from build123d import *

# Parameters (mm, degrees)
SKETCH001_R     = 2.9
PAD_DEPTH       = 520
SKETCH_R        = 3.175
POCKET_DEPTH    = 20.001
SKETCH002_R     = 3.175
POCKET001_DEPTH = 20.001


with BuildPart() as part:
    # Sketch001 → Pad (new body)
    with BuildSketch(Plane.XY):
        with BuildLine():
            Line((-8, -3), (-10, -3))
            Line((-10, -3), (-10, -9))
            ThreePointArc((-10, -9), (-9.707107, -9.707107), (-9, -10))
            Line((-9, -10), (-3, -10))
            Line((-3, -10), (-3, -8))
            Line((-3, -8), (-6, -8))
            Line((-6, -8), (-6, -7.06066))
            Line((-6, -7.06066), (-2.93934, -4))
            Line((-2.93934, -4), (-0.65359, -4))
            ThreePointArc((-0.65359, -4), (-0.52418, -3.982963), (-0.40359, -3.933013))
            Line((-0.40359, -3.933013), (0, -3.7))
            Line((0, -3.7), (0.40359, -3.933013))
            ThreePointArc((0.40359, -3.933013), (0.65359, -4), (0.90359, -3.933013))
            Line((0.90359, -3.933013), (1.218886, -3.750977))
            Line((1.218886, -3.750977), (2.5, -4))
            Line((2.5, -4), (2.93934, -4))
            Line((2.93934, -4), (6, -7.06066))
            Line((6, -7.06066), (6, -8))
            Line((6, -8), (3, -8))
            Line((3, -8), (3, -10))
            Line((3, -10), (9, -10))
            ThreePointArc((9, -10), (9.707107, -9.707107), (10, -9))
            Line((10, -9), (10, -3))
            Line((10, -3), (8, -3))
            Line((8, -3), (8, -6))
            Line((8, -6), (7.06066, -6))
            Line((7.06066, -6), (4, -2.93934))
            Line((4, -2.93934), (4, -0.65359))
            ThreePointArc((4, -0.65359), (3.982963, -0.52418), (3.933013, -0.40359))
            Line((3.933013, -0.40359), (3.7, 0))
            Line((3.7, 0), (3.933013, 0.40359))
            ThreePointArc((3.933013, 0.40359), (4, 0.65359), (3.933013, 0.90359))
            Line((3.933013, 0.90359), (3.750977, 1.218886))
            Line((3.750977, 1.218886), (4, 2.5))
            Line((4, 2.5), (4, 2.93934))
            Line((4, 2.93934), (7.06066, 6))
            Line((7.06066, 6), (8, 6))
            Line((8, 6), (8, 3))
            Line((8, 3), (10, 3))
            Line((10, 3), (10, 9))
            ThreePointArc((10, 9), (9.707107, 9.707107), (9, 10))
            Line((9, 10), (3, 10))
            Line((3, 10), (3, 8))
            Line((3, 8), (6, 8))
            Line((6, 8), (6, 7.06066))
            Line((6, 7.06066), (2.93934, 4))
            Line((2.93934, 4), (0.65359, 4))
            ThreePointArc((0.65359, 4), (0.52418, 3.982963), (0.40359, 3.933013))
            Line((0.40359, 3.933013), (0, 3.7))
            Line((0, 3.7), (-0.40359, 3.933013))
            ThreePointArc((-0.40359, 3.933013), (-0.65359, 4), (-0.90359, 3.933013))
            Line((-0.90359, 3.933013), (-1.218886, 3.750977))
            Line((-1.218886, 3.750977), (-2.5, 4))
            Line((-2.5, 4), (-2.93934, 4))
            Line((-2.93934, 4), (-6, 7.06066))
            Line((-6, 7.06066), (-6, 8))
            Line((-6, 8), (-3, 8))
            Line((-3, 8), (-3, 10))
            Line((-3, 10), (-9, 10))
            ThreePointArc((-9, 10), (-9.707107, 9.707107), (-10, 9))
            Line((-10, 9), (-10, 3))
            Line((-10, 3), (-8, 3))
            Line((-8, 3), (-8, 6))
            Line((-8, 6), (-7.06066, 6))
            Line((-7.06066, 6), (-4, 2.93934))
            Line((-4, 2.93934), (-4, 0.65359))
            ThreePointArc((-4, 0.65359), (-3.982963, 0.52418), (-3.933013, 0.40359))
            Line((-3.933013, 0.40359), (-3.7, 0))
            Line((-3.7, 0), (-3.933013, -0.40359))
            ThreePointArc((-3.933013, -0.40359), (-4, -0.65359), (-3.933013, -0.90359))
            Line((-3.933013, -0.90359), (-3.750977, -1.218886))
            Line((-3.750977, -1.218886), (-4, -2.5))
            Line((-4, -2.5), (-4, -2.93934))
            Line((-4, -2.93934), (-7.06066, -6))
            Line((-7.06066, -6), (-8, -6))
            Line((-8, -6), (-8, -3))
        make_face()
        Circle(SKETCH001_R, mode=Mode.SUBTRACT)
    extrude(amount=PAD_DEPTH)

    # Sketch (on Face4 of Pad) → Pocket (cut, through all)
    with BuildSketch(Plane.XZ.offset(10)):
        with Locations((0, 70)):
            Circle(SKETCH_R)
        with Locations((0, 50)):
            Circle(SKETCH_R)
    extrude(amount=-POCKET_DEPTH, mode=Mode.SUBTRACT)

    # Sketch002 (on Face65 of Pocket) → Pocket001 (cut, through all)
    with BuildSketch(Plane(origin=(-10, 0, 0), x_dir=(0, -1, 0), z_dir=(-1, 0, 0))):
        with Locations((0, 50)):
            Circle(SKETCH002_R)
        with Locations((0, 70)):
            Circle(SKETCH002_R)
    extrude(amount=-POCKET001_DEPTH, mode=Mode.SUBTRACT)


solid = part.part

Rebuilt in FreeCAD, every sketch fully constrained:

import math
import FreeCAD as App
import Part
import Sketcher
from FreeCAD import Vector
Q = App.Units.Quantity

doc = App.newDocument("Part")
body = doc.addObject("PartDesign::Body", "Body")

sketch1 = doc.addObject("Sketcher::SketchObject", "Sketch")
body.addObject(sketch1)
sketch1.AttachmentSupport = (doc.XY_Plane, [""])
sketch1.MapMode = "FlatFace"
sketch1.addGeometry(Part.LineSegment(Vector(-8, -3, 0), Vector(-10, -3, 0)), False)
sketch1.addGeometry(Part.LineSegment(Vector(-10, -3, 0), Vector(-10, -9, 0)), False)
sketch1.addGeometry(Part.ArcOfCircle(Part.Circle(Vector(-9, -9, 0), Vector(0, 0, 1), 1), math.radians(180), math.radians(270)), False)
sketch1.addGeometry(Part.LineSegment(Vector(-9, -10, 0), Vector(-3, -10, 0)), False)
sketch1.addGeometry(Part.LineSegment(Vector(-3, -10, 0), Vector(-3, -8, 0)), False)
sketch1.addGeometry(Part.LineSegment(Vector(-3, -8, 0), Vector(-6, -8, 0)), False)
sketch1.addGeometry(Part.LineSegment(Vector(-6, -8, 0), Vector(-6, -7.06, 0)), False)
sketch1.addGeometry(Part.LineSegment(Vector(-6, -7.06, 0), Vector(-2.94, -4, 0)), False)
sketch1.addGeometry(Part.LineSegment(Vector(-2.94, -4, 0), Vector(-0.65, -4, 0)), False)
sketch1.addGeometry(Part.ArcOfCircle(Part.Circle(Vector(-0.65, -3.5, 0), Vector(0, 0, 1), 0.5), math.radians(-90), math.radians(-60)), False)
sketch1.addGeometry(Part.LineSegment(Vector(-0.4, -3.93, 0), Vector(0, -3.7, 0)), False)
sketch1.addGeometry(Part.LineSegment(Vector(0, -3.7, 0), Vector(0.4, -3.93, 0)), False)
sketch1.addGeometry(Part.ArcOfCircle(Part.Circle(Vector(0.65, -3.5, 0), Vector(0, 0, 1), 0.5), math.radians(-120), math.radians(-60)), False)
sketch1.addGeometry(Part.LineSegment(Vector(0.9, -3.93, 0), Vector(1.22, -3.75, 0)), False)
sketch1.addGeometry(Part.LineSegment(Vector(1.22, -3.75, 0), Vector(2.5, -4, 0)), False)
sketch1.addGeometry(Part.LineSegment(Vector(2.5, -4, 0), Vector(2.94, -4, 0)), False)
sketch1.addGeometry(Part.LineSegment(Vector(2.94, -4, 0), Vector(6, -7.06, 0)), False)
sketch1.addGeometry(Part.LineSegment(Vector(6, -7.06, 0), Vector(6, -8, 0)), False)
sketch1.addGeometry(Part.LineSegment(Vector(6, -8, 0), Vector(3, -8, 0)), False)
sketch1.addGeometry(Part.LineSegment(Vector(3, -8, 0), Vector(3, -10, 0)), False)
sketch1.addGeometry(Part.LineSegment(Vector(3, -10, 0), Vector(9, -10, 0)), False)
sketch1.addGeometry(Part.ArcOfCircle(Part.Circle(Vector(9, -9, 0), Vector(0, 0, 1), 1), math.radians(-90), math.radians(0)), False)
sketch1.addGeometry(Part.LineSegment(Vector(10, -9, 0), Vector(10, -3, 0)), False)
sketch1.addGeometry(Part.LineSegment(Vector(10, -3, 0), Vector(8, -3, 0)), False)
sketch1.addGeometry(Part.LineSegment(Vector(8, -3, 0), Vector(8, -6, 0)), False)
sketch1.addGeometry(Part.LineSegment(Vector(8, -6, 0), Vector(7.06, -6, 0)), False)
sketch1.addGeometry(Part.LineSegment(Vector(7.06, -6, 0), Vector(4, -2.94, 0)), False)
sketch1.addGeometry(Part.LineSegment(Vector(4, -2.94, 0), Vector(4, -0.65, 0)), False)
sketch1.addGeometry(Part.ArcOfCircle(Part.Circle(Vector(3.5, -0.65, 0), Vector(0, 0, 1), 0.5), math.radians(0), math.radians(30)), False)
sketch1.addGeometry(Part.LineSegment(Vector(3.93, -0.4, 0), Vector(3.7, 0, 0)), False)
sketch1.addGeometry(Part.LineSegment(Vector(3.7, 0, 0), Vector(3.93, 0.4, 0)), False)
sketch1.addGeometry(Part.ArcOfCircle(Part.Circle(Vector(3.5, 0.65, 0), Vector(0, 0, 1), 0.5), math.radians(-30), math.radians(30)), False)
sketch1.addGeometry(Part.LineSegment(Vector(3.93, 0.9, 0), Vector(3.75, 1.22, 0)), False)
sketch1.addGeometry(Part.LineSegment(Vector(3.75, 1.22, 0), Vector(4, 2.5, 0)), False)
sketch1.addGeometry(Part.LineSegment(Vector(4, 2.5, 0), Vector(4, 2.94, 0)), False)
sketch1.addGeometry(Part.LineSegment(Vector(4, 2.94, 0), Vector(7.06, 6, 0)), False)
sketch1.addGeometry(Part.LineSegment(Vector(7.06, 6, 0), Vector(8, 6, 0)), False)
sketch1.addGeometry(Part.LineSegment(Vector(8, 6, 0), Vector(8, 3, 0)), False)
sketch1.addGeometry(Part.LineSegment(Vector(8, 3, 0), Vector(10, 3, 0)), False)
sketch1.addGeometry(Part.LineSegment(Vector(10, 3, 0), Vector(10, 9, 0)), False)
sketch1.addGeometry(Part.ArcOfCircle(Part.Circle(Vector(9, 9, 0), Vector(0, 0, 1), 1), math.radians(0), math.radians(90)), False)
sketch1.addGeometry(Part.LineSegment(Vector(9, 10, 0), Vector(3, 10, 0)), False)
sketch1.addGeometry(Part.LineSegment(Vector(3, 10, 0), Vector(3, 8, 0)), False)
sketch1.addGeometry(Part.LineSegment(Vector(3, 8, 0), Vector(6, 8, 0)), False)
sketch1.addGeometry(Part.LineSegment(Vector(6, 8, 0), Vector(6, 7.06, 0)), False)
sketch1.addGeometry(Part.LineSegment(Vector(6, 7.06, 0), Vector(2.94, 4, 0)), False)
sketch1.addGeometry(Part.LineSegment(Vector(2.94, 4, 0), Vector(0.65, 4, 0)), False)
sketch1.addGeometry(Part.ArcOfCircle(Part.Circle(Vector(0.65, 3.5, 0), Vector(0, 0, 1), 0.5), math.radians(90), math.radians(120)), False)
sketch1.addGeometry(Part.LineSegment(Vector(0.4, 3.93, 0), Vector(0, 3.7, 0)), False)
sketch1.addGeometry(Part.LineSegment(Vector(0, 3.7, 0), Vector(-0.4, 3.93, 0)), False)
sketch1.addGeometry(Part.ArcOfCircle(Part.Circle(Vector(-0.65, 3.5, 0), Vector(0, 0, 1), 0.5), math.radians(60), math.radians(120)), False)
sketch1.addGeometry(Part.LineSegment(Vector(-0.9, 3.93, 0), Vector(-1.22, 3.75, 0)), False)
sketch1.addGeometry(Part.LineSegment(Vector(-1.22, 3.75, 0), Vector(-2.5, 4, 0)), False)
sketch1.addGeometry(Part.LineSegment(Vector(-2.5, 4, 0), Vector(-2.94, 4, 0)), False)
sketch1.addGeometry(Part.LineSegment(Vector(-2.94, 4, 0), Vector(-6, 7.06, 0)), False)
sketch1.addGeometry(Part.LineSegment(Vector(-6, 7.06, 0), Vector(-6, 8, 0)), False)
sketch1.addGeometry(Part.LineSegment(Vector(-6, 8, 0), Vector(-3, 8, 0)), False)
sketch1.addGeometry(Part.LineSegment(Vector(-3, 8, 0), Vector(-3, 10, 0)), False)
sketch1.addGeometry(Part.LineSegment(Vector(-3, 10, 0), Vector(-9, 10, 0)), False)
sketch1.addGeometry(Part.ArcOfCircle(Part.Circle(Vector(-9, 9, 0), Vector(0, 0, 1), 1), math.radians(90), math.radians(180)), False)
sketch1.addGeometry(Part.LineSegment(Vector(-10, 9, 0), Vector(-10, 3, 0)), False)
sketch1.addGeometry(Part.LineSegment(Vector(-10, 3, 0), Vector(-8, 3, 0)), False)
sketch1.addGeometry(Part.LineSegment(Vector(-8, 3, 0), Vector(-8, 6, 0)), False)
sketch1.addGeometry(Part.LineSegment(Vector(-8, 6, 0), Vector(-7.06, 6, 0)), False)
sketch1.addGeometry(Part.LineSegment(Vector(-7.06, 6, 0), Vector(-4, 2.94, 0)), False)
sketch1.addGeometry(Part.LineSegment(Vector(-4, 2.94, 0), Vector(-4, 0.65, 0)), False)
sketch1.addGeometry(Part.ArcOfCircle(Part.Circle(Vector(-3.5, 0.65, 0), Vector(0, 0, 1), 0.5), math.radians(180), math.radians(210)), False)
sketch1.addGeometry(Part.LineSegment(Vector(-3.93, 0.4, 0), Vector(-3.7, 0, 0)), False)
sketch1.addGeometry(Part.LineSegment(Vector(-3.7, 0, 0), Vector(-3.93, -0.4, 0)), False)
sketch1.addGeometry(Part.ArcOfCircle(Part.Circle(Vector(-3.5, -0.65, 0), Vector(0, 0, 1), 0.5), math.radians(150), math.radians(210)), False)
sketch1.addGeometry(Part.LineSegment(Vector(-3.93, -0.9, 0), Vector(-3.75, -1.22, 0)), False)
sketch1.addGeometry(Part.LineSegment(Vector(-3.75, -1.22, 0), Vector(-4, -2.5, 0)), False)
sketch1.addGeometry(Part.LineSegment(Vector(-4, -2.5, 0), Vector(-4, -2.94, 0)), False)
sketch1.addGeometry(Part.LineSegment(Vector(-4, -2.94, 0), Vector(-7.06, -6, 0)), False)
sketch1.addGeometry(Part.LineSegment(Vector(-7.06, -6, 0), Vector(-8, -6, 0)), False)
sketch1.addGeometry(Part.LineSegment(Vector(-8, -6, 0), Vector(-8, -3, 0)), False)
sketch1.addGeometry(Part.Circle(Vector(0, 0, 0), Vector(0, 0, 1), 2.9), False)
sketch1.addConstraint(Sketcher.Constraint("Coincident", 0, 2, 1, 1))
sketch1.addConstraint(Sketcher.Constraint("Tangent", 1, 2, 2, 1))
sketch1.addConstraint(Sketcher.Constraint("Tangent", 2, 2, 3, 1))
sketch1.addConstraint(Sketcher.Constraint("Coincident", 3, 2, 4, 1))
sketch1.addConstraint(Sketcher.Constraint("Coincident", 4, 2, 5, 1))
sketch1.addConstraint(Sketcher.Constraint("Coincident", 5, 2, 6, 1))
sketch1.addConstraint(Sketcher.Constraint("Coincident", 6, 2, 7, 1))
sketch1.addConstraint(Sketcher.Constraint("Coincident", 7, 2, 8, 1))
sketch1.addConstraint(Sketcher.Constraint("Coincident", 8, 2, 9, 1))
sketch1.addConstraint(Sketcher.Constraint("Tangent", 9, 2, 10, 1))
sketch1.addConstraint(Sketcher.Constraint("Coincident", 10, 2, 11, 1))
sketch1.addConstraint(Sketcher.Constraint("Coincident", 11, 2, 12, 1))
sketch1.addConstraint(Sketcher.Constraint("Tangent", 12, 2, 13, 1))
sketch1.addConstraint(Sketcher.Constraint("Coincident", 13, 2, 14, 1))
sketch1.addConstraint(Sketcher.Constraint("Coincident", 14, 2, 15, 1))
sketch1.addConstraint(Sketcher.Constraint("Coincident", 15, 2, 16, 1))
sketch1.addConstraint(Sketcher.Constraint("Coincident", 16, 2, 17, 1))
sketch1.addConstraint(Sketcher.Constraint("Coincident", 17, 2, 18, 1))
sketch1.addConstraint(Sketcher.Constraint("Coincident", 18, 2, 19, 1))
sketch1.addConstraint(Sketcher.Constraint("Coincident", 19, 2, 20, 1))
sketch1.addConstraint(Sketcher.Constraint("Tangent", 20, 2, 21, 1))
sketch1.addConstraint(Sketcher.Constraint("Tangent", 21, 2, 22, 1))
sketch1.addConstraint(Sketcher.Constraint("Coincident", 22, 2, 23, 1))
sketch1.addConstraint(Sketcher.Constraint("Coincident", 23, 2, 24, 1))
sketch1.addConstraint(Sketcher.Constraint("Coincident", 24, 2, 25, 1))
sketch1.addConstraint(Sketcher.Constraint("Coincident", 25, 2, 26, 1))
sketch1.addConstraint(Sketcher.Constraint("Coincident", 26, 2, 27, 1))
sketch1.addConstraint(Sketcher.Constraint("Coincident", 27, 2, 28, 1))
sketch1.addConstraint(Sketcher.Constraint("Tangent", 28, 2, 29, 1))
sketch1.addConstraint(Sketcher.Constraint("Coincident", 29, 2, 30, 1))
sketch1.addConstraint(Sketcher.Constraint("Coincident", 30, 2, 31, 1))
sketch1.addConstraint(Sketcher.Constraint("Tangent", 31, 2, 32, 1))
sketch1.addConstraint(Sketcher.Constraint("Coincident", 32, 2, 33, 1))
sketch1.addConstraint(Sketcher.Constraint("Coincident", 33, 2, 34, 1))
sketch1.addConstraint(Sketcher.Constraint("Coincident", 34, 2, 35, 1))
sketch1.addConstraint(Sketcher.Constraint("Coincident", 35, 2, 36, 1))
sketch1.addConstraint(Sketcher.Constraint("Coincident", 36, 2, 37, 1))
sketch1.addConstraint(Sketcher.Constraint("Coincident", 37, 2, 38, 1))
sketch1.addConstraint(Sketcher.Constraint("Coincident", 38, 2, 39, 1))
sketch1.addConstraint(Sketcher.Constraint("Tangent", 39, 2, 40, 1))
sketch1.addConstraint(Sketcher.Constraint("Tangent", 40, 2, 41, 1))
sketch1.addConstraint(Sketcher.Constraint("Coincident", 41, 2, 42, 1))
sketch1.addConstraint(Sketcher.Constraint("Coincident", 42, 2, 43, 1))
sketch1.addConstraint(Sketcher.Constraint("Coincident", 43, 2, 44, 1))
sketch1.addConstraint(Sketcher.Constraint("Coincident", 44, 2, 45, 1))
sketch1.addConstraint(Sketcher.Constraint("Coincident", 45, 2, 46, 1))
sketch1.addConstraint(Sketcher.Constraint("Coincident", 46, 2, 47, 1))
sketch1.addConstraint(Sketcher.Constraint("Tangent", 47, 2, 48, 1))
sketch1.addConstraint(Sketcher.Constraint("Coincident", 48, 2, 49, 1))
sketch1.addConstraint(Sketcher.Constraint("Coincident", 49, 2, 50, 1))
sketch1.addConstraint(Sketcher.Constraint("Tangent", 50, 2, 51, 1))
sketch1.addConstraint(Sketcher.Constraint("Coincident", 51, 2, 52, 1))
sketch1.addConstraint(Sketcher.Constraint("Coincident", 52, 2, 53, 1))
sketch1.addConstraint(Sketcher.Constraint("Coincident", 53, 2, 54, 1))
sketch1.addConstraint(Sketcher.Constraint("Coincident", 54, 2, 55, 1))
sketch1.addConstraint(Sketcher.Constraint("Coincident", 55, 2, 56, 1))
sketch1.addConstraint(Sketcher.Constraint("Coincident", 56, 2, 57, 1))
sketch1.addConstraint(Sketcher.Constraint("Coincident", 57, 2, 58, 1))
sketch1.addConstraint(Sketcher.Constraint("Tangent", 58, 2, 59, 1))
sketch1.addConstraint(Sketcher.Constraint("Tangent", 59, 2, 60, 1))
sketch1.addConstraint(Sketcher.Constraint("Coincident", 60, 2, 61, 1))
sketch1.addConstraint(Sketcher.Constraint("Coincident", 61, 2, 62, 1))
sketch1.addConstraint(Sketcher.Constraint("Coincident", 62, 2, 63, 1))
sketch1.addConstraint(Sketcher.Constraint("Coincident", 63, 2, 64, 1))
sketch1.addConstraint(Sketcher.Constraint("Coincident", 64, 2, 65, 1))
sketch1.addConstraint(Sketcher.Constraint("Coincident", 65, 2, 66, 1))
sketch1.addConstraint(Sketcher.Constraint("Tangent", 66, 2, 67, 1))
sketch1.addConstraint(Sketcher.Constraint("Coincident", 67, 2, 68, 1))
sketch1.addConstraint(Sketcher.Constraint("Coincident", 68, 2, 69, 1))
sketch1.addConstraint(Sketcher.Constraint("Tangent", 69, 2, 70, 1))
sketch1.addConstraint(Sketcher.Constraint("Coincident", 70, 2, 71, 1))
sketch1.addConstraint(Sketcher.Constraint("Coincident", 71, 2, 72, 1))
sketch1.addConstraint(Sketcher.Constraint("Coincident", 72, 2, 73, 1))
sketch1.addConstraint(Sketcher.Constraint("Coincident", 73, 2, 74, 1))
sketch1.addConstraint(Sketcher.Constraint("Coincident", 74, 2, 75, 1))
sketch1.addConstraint(Sketcher.Constraint("Coincident", 75, 2, 0, 1))
sketch1.addConstraint(Sketcher.Constraint("Horizontal", 0))
sketch1.addConstraint(Sketcher.Constraint("Vertical", 1))
sketch1.addConstraint(Sketcher.Constraint("Horizontal", 3))
sketch1.addConstraint(Sketcher.Constraint("Vertical", 4))
sketch1.addConstraint(Sketcher.Constraint("Horizontal", 5))
sketch1.addConstraint(Sketcher.Constraint("Vertical", 6))
sketch1.addConstraint(Sketcher.Constraint("Horizontal", 8))
sketch1.addConstraint(Sketcher.Constraint("Horizontal", 15))
sketch1.addConstraint(Sketcher.Constraint("Vertical", 17))
sketch1.addConstraint(Sketcher.Constraint("Horizontal", 18))
sketch1.addConstraint(Sketcher.Constraint("Vertical", 19))
sketch1.addConstraint(Sketcher.Constraint("Horizontal", 20))
sketch1.addConstraint(Sketcher.Constraint("Vertical", 22))
sketch1.addConstraint(Sketcher.Constraint("Horizontal", 23))
sketch1.addConstraint(Sketcher.Constraint("Vertical", 24))
sketch1.addConstraint(Sketcher.Constraint("Horizontal", 25))
sketch1.addConstraint(Sketcher.Constraint("Vertical", 27))
sketch1.addConstraint(Sketcher.Constraint("Vertical", 34))
sketch1.addConstraint(Sketcher.Constraint("Horizontal", 36))
sketch1.addConstraint(Sketcher.Constraint("Vertical", 37))
sketch1.addConstraint(Sketcher.Constraint("Horizontal", 38))
sketch1.addConstraint(Sketcher.Constraint("Vertical", 39))
sketch1.addConstraint(Sketcher.Constraint("Horizontal", 41))
sketch1.addConstraint(Sketcher.Constraint("Vertical", 42))
sketch1.addConstraint(Sketcher.Constraint("Horizontal", 43))
sketch1.addConstraint(Sketcher.Constraint("Vertical", 44))
sketch1.addConstraint(Sketcher.Constraint("Horizontal", 46))
sketch1.addConstraint(Sketcher.Constraint("Horizontal", 53))
sketch1.addConstraint(Sketcher.Constraint("Vertical", 55))
sketch1.addConstraint(Sketcher.Constraint("Horizontal", 56))
sketch1.addConstraint(Sketcher.Constraint("Vertical", 57))
sketch1.addConstraint(Sketcher.Constraint("Horizontal", 58))
sketch1.addConstraint(Sketcher.Constraint("Vertical", 60))
sketch1.addConstraint(Sketcher.Constraint("Horizontal", 61))
sketch1.addConstraint(Sketcher.Constraint("Vertical", 62))
sketch1.addConstraint(Sketcher.Constraint("Horizontal", 63))
sketch1.addConstraint(Sketcher.Constraint("Vertical", 65))
sketch1.addConstraint(Sketcher.Constraint("Vertical", 72))
sketch1.addConstraint(Sketcher.Constraint("Horizontal", 74))
sketch1.addConstraint(Sketcher.Constraint("Vertical", 75))
sketch1.addConstraint(Sketcher.Constraint("Coincident", 76, 3, -1, 1))
sketch1.addConstraint(Sketcher.Constraint("Equal", 2, 21))
sketch1.addConstraint(Sketcher.Constraint("Equal", 9, 28))
sketch1.addConstraint(Sketcher.Constraint("Equal", 12, 31))
sketch1.addConstraint(Sketcher.Constraint("Equal", 21, 40))
sketch1.addConstraint(Sketcher.Constraint("Equal", 28, 47))
sketch1.addConstraint(Sketcher.Constraint("Equal", 31, 50))
sketch1.addConstraint(Sketcher.Constraint("Equal", 40, 59))
sketch1.addConstraint(Sketcher.Constraint("Equal", 47, 66))
sketch1.addConstraint(Sketcher.Constraint("Equal", 50, 69))
sketch1.addConstraint(Sketcher.Constraint("Symmetric", 2, 3, 40, 3, -1, 1))
sketch1.addConstraint(Sketcher.Constraint("Symmetric", 9, 3, 47, 3, -1, 1))
sketch1.addConstraint(Sketcher.Constraint("Symmetric", 12, 3, 50, 3, -1, 1))
sketch1.addConstraint(Sketcher.Constraint("Symmetric", 21, 3, 59, 3, -1, 1))
sketch1.addConstraint(Sketcher.Constraint("Symmetric", 28, 3, 66, 3, -1, 1))
sketch1.addConstraint(Sketcher.Constraint("Symmetric", 31, 3, 69, 3, -1, 1))
sketch1.addConstraint(Sketcher.Constraint("Symmetric", 4, 2, 42, 2, -1, 1))
sketch1.addConstraint(Sketcher.Constraint("Symmetric", 6, 2, 44, 2, -1, 1))
sketch1.addConstraint(Sketcher.Constraint("Symmetric", 10, 2, 48, 2, -1, 1))
sketch1.addConstraint(Sketcher.Constraint("Symmetric", 13, 2, 51, 2, -1, 1))
sketch1.addConstraint(Sketcher.Constraint("Symmetric", 14, 2, 52, 2, -1, 1))
sketch1.addConstraint(Sketcher.Constraint("Symmetric", 16, 2, 54, 2, -1, 1))
sketch1.addConstraint(Sketcher.Constraint("Symmetric", 18, 2, 56, 2, -1, 1))
sketch1.addConstraint(Sketcher.Constraint("Symmetric", 23, 2, 61, 2, -1, 1))
sketch1.addConstraint(Sketcher.Constraint("Symmetric", 25, 2, 63, 2, -1, 1))
sketch1.addConstraint(Sketcher.Constraint("Symmetric", 29, 2, 67, 2, -1, 1))
sketch1.addConstraint(Sketcher.Constraint("Symmetric", 32, 2, 70, 2, -1, 1))
sketch1.addConstraint(Sketcher.Constraint("Symmetric", 33, 2, 71, 2, -1, 1))
sketch1.addConstraint(Sketcher.Constraint("Symmetric", 35, 2, 73, 2, -1, 1))
sketch1.addConstraint(Sketcher.Constraint("Symmetric", 37, 2, 75, 2, -1, 1))
sketch1.addConstraint(Sketcher.Constraint("Symmetric", 9, 3, 12, 3, -2))
sketch1.addConstraint(Sketcher.Constraint("Symmetric", 2, 3, 21, 3, -2))
sketch1.addConstraint(Sketcher.Constraint("Symmetric", 31, 3, 66, 3, -2))
sketch1.addConstraint(Sketcher.Constraint("Symmetric", 9, 2, 11, 2, -2))
sketch1.addConstraint(Sketcher.Constraint("Symmetric", 7, 2, 15, 2, -2))
sketch1.addConstraint(Sketcher.Constraint("Symmetric", 6, 2, 16, 2, -2))
sketch1.addConstraint(Sketcher.Constraint("Symmetric", 4, 2, 18, 2, -2))
sketch1.addConstraint(Sketcher.Constraint("Symmetric", 37, 2, 61, 2, -2))
sketch1.addConstraint(Sketcher.Constraint("Symmetric", 35, 2, 63, 2, -2))
sketch1.addConstraint(Sketcher.Constraint("Symmetric", 34, 2, 64, 2, -2))
sketch1.addConstraint(Sketcher.Constraint("PointOnObject", 10, 2, -2))
sketch1.addConstraint(Sketcher.Constraint("PointOnObject", 29, 2, -1))
sketch1.addConstraint(Sketcher.Constraint("Parallel", 10, 13))
sketch1.addConstraint(Sketcher.Constraint("Perpendicular", 7, 16))
sketch1.addConstraint(Sketcher.Constraint("Parallel", 16, 26))
sketch1.addConstraint(Sketcher.Constraint("Perpendicular", 13, 29))
sketch1.addConstraint(Sketcher.Constraint("Parallel", 29, 32))
sketch1.addConstraint(Sketcher.Constraint("Perpendicular", 14, 33))
sketch1.addConstraint(Sketcher.Constraint("Perpendicular", 26, 35))
sketch1.addConstraint(Sketcher.Constraint("Parallel", 35, 45))
sketch1.addConstraint(Sketcher.Constraint("Perpendicular", 45, 54))
sketch1.addConstraint(Sketcher.Constraint("Perpendicular", 64, 73))
sketch1.addConstraint(Sketcher.Constraint("Horizontal", 69, 3, 27, 2))
sketch1.addConstraint(Sketcher.Constraint("Horizontal", 47, 2, 49, 2))
sketch1.addConstraint(Sketcher.Constraint("Horizontal", 66, 3, 65, 2))
sketch1.addConstraint(Sketcher.Constraint("Horizontal", 30, 2, 66, 2))
sketch1.addConstraint(Sketcher.Constraint("Horizontal", 28, 2, 68, 2))
sketch1.addConstraint(Sketcher.Constraint("Vertical", 50, 3, 8, 2))
sketch1.addConstraint(Sketcher.Constraint("Vertical", 47, 3, 46, 2))
sketch1.addConstraint(Sketcher.Constraint("Equal", 58, 1))
sketch1.addConstraint(Sketcher.Constraint("Equal", 61, 4))
sketch1.addConstraint(Sketcher.Constraint("Equal", 74, 6))
sketch1.addConstraint(Sketcher.Constraint("Equal", 56, 24))
sketch1.addConstraint(Sketcher.Constraint("Equal", 46, 27))
sketch1.addConstraint(Sketcher.Constraint("Equal", 53, 34))
sketch1.addConstraint(Sketcher.Constraint("Equal", 16, 26))
sketch1.addConstraint(Sketcher.Constraint("Equal", 11, 29))
sketch1.addConstraint(Sketcher.Constraint("Radius", 2, Q("0.999999 mm")))
sketch1.addConstraint(Sketcher.Constraint("Diameter", 76, Q("5.8 mm")))
sketch1.addConstraint(Sketcher.Constraint("Radius", 12, Q("0.500002 mm")))
sketch1.addConstraint(Sketcher.Constraint("DistanceX", 0, 2, 0, 1, Q("2 mm")))
sketch1.addConstraint(Sketcher.Constraint("DistanceX", 3, 1, 3, 2, Q("6 mm")))
sketch1.addConstraint(Sketcher.Constraint("DistanceX", 5, 2, 5, 1, Q("3 mm")))
sketch1.addConstraint(Sketcher.Constraint("Angle", 14, Q("-10.999986 deg")))
sketch1.addConstraint(Sketcher.Constraint("DistanceX", 2, 3, -1, 1, Q("9.000001 mm")))
sketch1.addConstraint(Sketcher.Constraint("DistanceY", 7, 2, -1, 1, Q("4 mm")))
sketch1.addConstraint(Sketcher.Constraint("DistanceY", 10, 2, -1, 1, Q("3.7 mm")))
sketch1.addConstraint(Sketcher.Constraint("DistanceX", -1, 1, 14, 2, Q("2.5 mm")))
sketch1.addConstraint(Sketcher.Constraint("DistanceX", 8, 1, 8, 2, Q("2.28575 mm")))
sketch1.addConstraint(Sketcher.Constraint("DistanceX", 15, 1, 15, 2, Q("0.43934 mm")))
pad1 = doc.addObject("PartDesign::Pad", "Pad")
body.addObject(pad1)
pad1.Profile = sketch1
pad1.Length = 520

sketch2 = doc.addObject("Sketcher::SketchObject", "Sketch001")
body.addObject(sketch2)
sketch2.AttachmentSupport = (doc.XZ_Plane, [""])
sketch2.MapMode = "FlatFace"
sketch2.AttachmentOffset = App.Placement(Vector(0, 0, 10), App.Rotation())
sketch2.addGeometry(Part.Circle(Vector(0, 70, 0), Vector(0, 0, 1), 3.2), False)
sketch2.addGeometry(Part.Circle(Vector(0, 50, 0), Vector(0, 0, 1), 3.2), False)
sketch2.addConstraint(Sketcher.Constraint("Equal", 0, 1))
sketch2.addConstraint(Sketcher.Constraint("PointOnObject", 0, 3, -2))
sketch2.addConstraint(Sketcher.Constraint("PointOnObject", 1, 3, -2))
sketch2.addConstraint(Sketcher.Constraint("Diameter", 0, Q("6.35 mm")))
sketch2.addConstraint(Sketcher.Constraint("DistanceY", -1, 1, 0, 3, Q("70 mm")))
sketch2.addConstraint(Sketcher.Constraint("DistanceY", -1, 1, 1, 3, Q("50 mm")))
pocket1 = doc.addObject("PartDesign::Pocket", "Pocket")
body.addObject(pocket1)
pocket1.Profile = sketch2
pocket1.Type = "ThroughAll"

sketch3 = doc.addObject("Sketcher::SketchObject", "Sketch002")
body.addObject(sketch3)
sketch3.AttachmentSupport = (doc.YZ_Plane, [""])
sketch3.MapMode = "FlatFace"
sketch3.AttachmentOffset = App.Placement(Vector(0, 0, -10), App.Rotation())
sketch3.addGeometry(Part.Circle(Vector(0, 50, 0), Vector(0, 0, 1), 3.2), False)
sketch3.addGeometry(Part.Circle(Vector(0, 70, 0), Vector(0, 0, 1), 3.2), False)
sketch3.addConstraint(Sketcher.Constraint("Equal", 0, 1))
sketch3.addConstraint(Sketcher.Constraint("PointOnObject", 0, 3, -2))
sketch3.addConstraint(Sketcher.Constraint("PointOnObject", 1, 3, -2))
sketch3.addConstraint(Sketcher.Constraint("Diameter", 0, Q("6.35 mm")))
sketch3.addConstraint(Sketcher.Constraint("DistanceY", -1, 1, 0, 3, Q("50 mm")))
sketch3.addConstraint(Sketcher.Constraint("DistanceY", -1, 1, 1, 3, Q("70 mm")))
pocket2 = doc.addObject("PartDesign::Pocket", "Pocket001")
body.addObject(pocket2)
pocket2.Profile = sketch3
pocket2.Type = "ThroughAll"
pocket2.Reversed = True

doc.recompute()
